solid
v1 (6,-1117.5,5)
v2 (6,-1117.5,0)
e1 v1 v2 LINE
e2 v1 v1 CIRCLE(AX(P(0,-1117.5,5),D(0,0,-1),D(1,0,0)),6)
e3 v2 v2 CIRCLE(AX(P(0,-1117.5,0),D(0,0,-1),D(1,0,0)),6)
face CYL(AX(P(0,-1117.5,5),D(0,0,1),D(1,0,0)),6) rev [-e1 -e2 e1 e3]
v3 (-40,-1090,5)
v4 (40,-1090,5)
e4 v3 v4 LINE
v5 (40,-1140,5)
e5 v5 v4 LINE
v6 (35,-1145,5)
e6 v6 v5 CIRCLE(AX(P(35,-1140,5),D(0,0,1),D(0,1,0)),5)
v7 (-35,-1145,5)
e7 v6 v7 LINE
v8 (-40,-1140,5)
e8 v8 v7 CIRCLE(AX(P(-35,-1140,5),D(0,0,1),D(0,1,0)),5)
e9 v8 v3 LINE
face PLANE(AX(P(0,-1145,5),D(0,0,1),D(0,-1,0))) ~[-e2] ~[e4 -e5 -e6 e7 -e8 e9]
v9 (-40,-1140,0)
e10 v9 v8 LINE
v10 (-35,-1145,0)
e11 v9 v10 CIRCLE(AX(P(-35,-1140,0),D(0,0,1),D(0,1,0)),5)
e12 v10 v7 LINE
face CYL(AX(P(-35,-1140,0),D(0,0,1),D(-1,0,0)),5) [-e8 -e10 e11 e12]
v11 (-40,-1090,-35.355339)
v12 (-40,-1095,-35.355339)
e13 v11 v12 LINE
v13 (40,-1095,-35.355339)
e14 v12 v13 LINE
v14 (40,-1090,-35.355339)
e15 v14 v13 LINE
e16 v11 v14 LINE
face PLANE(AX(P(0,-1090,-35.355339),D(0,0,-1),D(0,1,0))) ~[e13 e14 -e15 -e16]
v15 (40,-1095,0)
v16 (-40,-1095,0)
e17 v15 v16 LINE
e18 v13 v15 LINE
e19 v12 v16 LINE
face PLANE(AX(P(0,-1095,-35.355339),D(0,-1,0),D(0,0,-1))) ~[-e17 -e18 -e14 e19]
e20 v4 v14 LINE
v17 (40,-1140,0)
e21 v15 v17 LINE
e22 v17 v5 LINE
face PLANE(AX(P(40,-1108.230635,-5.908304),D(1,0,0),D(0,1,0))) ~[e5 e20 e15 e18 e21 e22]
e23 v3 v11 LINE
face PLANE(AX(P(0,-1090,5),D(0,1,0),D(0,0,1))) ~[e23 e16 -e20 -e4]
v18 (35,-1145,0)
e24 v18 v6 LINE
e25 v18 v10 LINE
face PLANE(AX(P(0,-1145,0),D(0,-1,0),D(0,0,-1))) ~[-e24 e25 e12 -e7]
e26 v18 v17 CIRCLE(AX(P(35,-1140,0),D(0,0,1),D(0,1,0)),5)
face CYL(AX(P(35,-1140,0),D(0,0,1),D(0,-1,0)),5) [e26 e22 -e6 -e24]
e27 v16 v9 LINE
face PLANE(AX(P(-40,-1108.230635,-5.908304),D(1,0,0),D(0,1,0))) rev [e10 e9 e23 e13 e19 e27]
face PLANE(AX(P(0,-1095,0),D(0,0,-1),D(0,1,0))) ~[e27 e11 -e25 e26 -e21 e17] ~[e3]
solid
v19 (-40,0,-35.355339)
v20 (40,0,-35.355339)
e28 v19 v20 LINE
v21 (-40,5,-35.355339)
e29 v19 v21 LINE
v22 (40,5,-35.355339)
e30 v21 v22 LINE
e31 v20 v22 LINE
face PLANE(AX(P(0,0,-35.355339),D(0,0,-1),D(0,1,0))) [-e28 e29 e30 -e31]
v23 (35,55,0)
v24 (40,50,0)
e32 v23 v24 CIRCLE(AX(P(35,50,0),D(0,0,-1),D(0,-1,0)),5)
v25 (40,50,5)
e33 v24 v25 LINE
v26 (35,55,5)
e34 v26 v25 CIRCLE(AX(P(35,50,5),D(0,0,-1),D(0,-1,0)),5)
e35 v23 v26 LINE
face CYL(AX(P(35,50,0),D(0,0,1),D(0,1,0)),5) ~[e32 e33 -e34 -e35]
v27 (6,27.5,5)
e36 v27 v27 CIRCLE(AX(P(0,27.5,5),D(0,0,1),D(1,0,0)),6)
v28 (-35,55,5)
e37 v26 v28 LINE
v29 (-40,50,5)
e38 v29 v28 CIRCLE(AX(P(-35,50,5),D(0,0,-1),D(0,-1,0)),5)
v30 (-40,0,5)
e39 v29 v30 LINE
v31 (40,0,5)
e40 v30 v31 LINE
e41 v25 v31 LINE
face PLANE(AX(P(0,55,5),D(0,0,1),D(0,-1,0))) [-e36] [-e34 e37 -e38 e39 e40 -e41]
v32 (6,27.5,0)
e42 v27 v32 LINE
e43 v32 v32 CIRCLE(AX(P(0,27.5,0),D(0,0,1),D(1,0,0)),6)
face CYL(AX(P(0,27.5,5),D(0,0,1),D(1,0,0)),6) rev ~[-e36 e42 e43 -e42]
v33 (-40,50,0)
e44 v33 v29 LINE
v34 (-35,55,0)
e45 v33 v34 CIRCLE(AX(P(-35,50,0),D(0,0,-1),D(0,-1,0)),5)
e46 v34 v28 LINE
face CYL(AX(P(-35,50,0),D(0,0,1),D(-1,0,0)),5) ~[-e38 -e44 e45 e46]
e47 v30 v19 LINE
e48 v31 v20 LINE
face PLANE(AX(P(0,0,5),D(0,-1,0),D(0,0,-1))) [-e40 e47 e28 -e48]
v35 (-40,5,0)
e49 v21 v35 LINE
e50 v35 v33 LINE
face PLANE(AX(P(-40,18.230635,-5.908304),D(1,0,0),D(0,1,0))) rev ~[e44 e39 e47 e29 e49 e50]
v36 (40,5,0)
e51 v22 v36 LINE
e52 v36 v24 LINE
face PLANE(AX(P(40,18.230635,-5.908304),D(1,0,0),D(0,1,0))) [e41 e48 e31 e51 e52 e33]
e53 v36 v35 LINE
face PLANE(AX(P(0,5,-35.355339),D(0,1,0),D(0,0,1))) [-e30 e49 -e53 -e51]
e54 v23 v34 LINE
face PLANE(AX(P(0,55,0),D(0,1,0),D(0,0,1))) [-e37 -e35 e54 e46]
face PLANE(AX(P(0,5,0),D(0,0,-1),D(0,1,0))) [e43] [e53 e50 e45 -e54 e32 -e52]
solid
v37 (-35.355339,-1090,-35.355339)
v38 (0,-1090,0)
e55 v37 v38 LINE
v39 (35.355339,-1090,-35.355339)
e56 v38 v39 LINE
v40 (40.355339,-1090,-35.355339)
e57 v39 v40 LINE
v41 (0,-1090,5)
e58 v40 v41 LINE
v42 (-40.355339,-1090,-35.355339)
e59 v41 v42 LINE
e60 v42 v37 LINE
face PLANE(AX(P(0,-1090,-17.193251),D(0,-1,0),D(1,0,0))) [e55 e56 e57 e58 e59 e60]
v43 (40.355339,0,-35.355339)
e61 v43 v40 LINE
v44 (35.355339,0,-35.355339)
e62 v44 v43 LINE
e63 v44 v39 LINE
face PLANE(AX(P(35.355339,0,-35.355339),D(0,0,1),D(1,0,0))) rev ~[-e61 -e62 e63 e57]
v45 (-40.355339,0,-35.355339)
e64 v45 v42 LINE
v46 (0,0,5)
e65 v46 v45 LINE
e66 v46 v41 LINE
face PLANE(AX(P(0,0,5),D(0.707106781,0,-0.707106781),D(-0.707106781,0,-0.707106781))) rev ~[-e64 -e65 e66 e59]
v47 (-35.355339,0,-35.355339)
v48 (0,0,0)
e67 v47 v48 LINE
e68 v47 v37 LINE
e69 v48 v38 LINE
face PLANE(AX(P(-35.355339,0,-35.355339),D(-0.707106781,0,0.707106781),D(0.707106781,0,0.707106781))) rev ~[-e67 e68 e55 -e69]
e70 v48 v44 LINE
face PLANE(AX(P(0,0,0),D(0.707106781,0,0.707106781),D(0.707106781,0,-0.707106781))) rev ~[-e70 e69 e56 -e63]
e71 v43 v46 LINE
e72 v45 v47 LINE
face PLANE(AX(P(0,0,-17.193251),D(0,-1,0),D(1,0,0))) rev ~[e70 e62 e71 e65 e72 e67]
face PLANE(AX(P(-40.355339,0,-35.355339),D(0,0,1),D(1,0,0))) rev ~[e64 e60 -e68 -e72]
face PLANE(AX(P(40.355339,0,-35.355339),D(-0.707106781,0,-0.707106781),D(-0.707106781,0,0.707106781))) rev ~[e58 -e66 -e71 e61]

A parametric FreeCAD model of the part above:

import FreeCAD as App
import Part
import Sketcher
from FreeCAD import Vector


def edges_at(feature, points):
    """Names of the edges that pass closest to the given points."""
    edges = feature.Shape.Edges
    near = lambda p: min(range(len(edges)), key=lambda i: edges[i].distToShape(Part.Vertex(*p))[0])
    return sorted({f"Edge{near(p) + 1}" for p in points})

doc = App.newDocument("Part")
body = doc.addObject("PartDesign::Body", "Body")

# Sketch on XZ plane
sketch1 = body.newObject("Sketcher::SketchObject", "Sketch")
sketch1.AttachmentSupport = (doc.getObject("XZ_Plane"), [""])
sketch1.MapMode = "FlatFace"
sketch1.addGeometry(Part.LineSegment(Vector(-35, -35, 0), Vector(0, 0, 0)), False)
sketch1.addGeometry(Part.LineSegment(Vector(0, 0, 0), Vector(35, -35, 0)), False)
sketch1.addGeometry(Part.LineSegment(Vector(35, -35, 0), Vector(40, -35, 0)), False)
sketch1.addGeometry(Part.LineSegment(Vector(40, -35, 0), Vector(0, 5, 0)), False)
sketch1.addGeometry(Part.LineSegment(Vector(0, 5, 0), Vector(-40, -35, 0)), False)
sketch1.addGeometry(Part.LineSegment(Vector(-40, -35, 0), Vector(-35, -35, 0)), False)
sketch1.addConstraint(Sketcher.Constraint("Coincident", 0, 2, 1, 1))
sketch1.addConstraint(Sketcher.Constraint("Coincident", 1, 2, 2, 1))
sketch1.addConstraint(Sketcher.Constraint("Coincident", 2, 2, 3, 1))
sketch1.addConstraint(Sketcher.Constraint("Coincident", 3, 2, 4, 1))
sketch1.addConstraint(Sketcher.Constraint("Coincident", 4, 2, 5, 1))
sketch1.addConstraint(Sketcher.Constraint("Coincident", 5, 2, 0, 1))
sketch1.addConstraint(Sketcher.Constraint("Horizontal", 2))
sketch1.addConstraint(Sketcher.Constraint("Horizontal", 5))
sketch1.addConstraint(Sketcher.Constraint("Coincident", 0, 2, -1, 1))
sketch1.addConstraint(Sketcher.Constraint("Symmetric", 2, 2, 4, 2, -2))
sketch1.addConstraint(Sketcher.Constraint("PointOnObject", 3, 2, -2))
sketch1.addConstraint(Sketcher.Constraint("Perpendicular", 0, 1))
sketch1.addConstraint(Sketcher.Constraint("Parallel", 1, 3))
sketch1.addConstraint(Sketcher.Constraint("Perpendicular", 3, 4))
sketch1.addConstraint(Sketcher.Constraint("DistanceX", 2, 1, 2, 2, 5.0))
sketch1.addConstraint(Sketcher.Constraint("Distance", 0, 50.0))
pad1 = body.newObject("PartDesign::Pad", "Pad")
pad1.Profile = sketch1
pad1.Length = 1090
body2 = doc.addObject("PartDesign::Body", "Body001")

# Sketch on YZ plane
sketch2 = body2.newObject("Sketcher::SketchObject", "Sketch001")
sketch2.AttachmentSupport = (doc.getObject("YZ_Plane001"), [""])
sketch2.MapMode = "FlatFace"
sketch2.addGeometry(Part.LineSegment(Vector(55, 5, 0), Vector(0, 5, 0)), False)
sketch2.addGeometry(Part.LineSegment(Vector(0, 5, 0), Vector(0, -35, 0)), False)
sketch2.addGeometry(Part.LineSegment(Vector(0, -35, 0), Vector(5, -35, 0)), False)
sketch2.addGeometry(Part.LineSegment(Vector(5, -35, 0), Vector(5, 0, 0)), False)
sketch2.addGeometry(Part.LineSegment(Vector(5, 0, 0), Vector(55, 0, 0)), False)
sketch2.addGeometry(Part.LineSegment(Vector(55, 0, 0), Vector(55, 5, 0)), False)
sketch2.addConstraint(Sketcher.Constraint("Coincident", 0, 2, 1, 1))
sketch2.addConstraint(Sketcher.Constraint("Coincident", 1, 2, 2, 1))
sketch2.addConstraint(Sketcher.Constraint("Coincident", 2, 2, 3, 1))
sketch2.addConstraint(Sketcher.Constraint("Coincident", 3, 2, 4, 1))
sketch2.addConstraint(Sketcher.Constraint("Coincident", 4, 2, 5, 1))
sketch2.addConstraint(Sketcher.Constraint("Coincident", 5, 2, 0, 1))
sketch2.addConstraint(Sketcher.Constraint("Horizontal", 0))
sketch2.addConstraint(Sketcher.Constraint("Vertical", 1))
sketch2.addConstraint(Sketcher.Constraint("Horizontal", 2))
sketch2.addConstraint(Sketcher.Constraint("Vertical", 3))
sketch2.addConstraint(Sketcher.Constraint("Horizontal", 4))
sketch2.addConstraint(Sketcher.Constraint("Vertical", 5))
sketch2.addConstraint(Sketcher.Constraint("PointOnObject", 0, 2, -2))
sketch2.addConstraint(Sketcher.Constraint("PointOnObject", 3, 2, -1))
sketch2.addConstraint(Sketcher.Constraint("Equal", 2, 5))
sketch2.addConstraint(Sketcher.Constraint("DistanceX", 0, 2, 0, 1, 55.0))
sketch2.addConstraint(Sketcher.Constraint("DistanceX", 2, 1, 2, 2, 5.0))
sketch2.addConstraint(Sketcher.Constraint("DistanceY", 1, 2, 1, 1, 40.355339))
pad2 = body2.newObject("PartDesign::Pad", "Pad001")
pad2.Profile = sketch2
pad2.Length = 80
pad2.Midplane = True

# Sketch on XY plane
sketch3 = body2.newObject("Sketcher::SketchObject", "Sketch002")
sketch3.AttachmentSupport = (doc.getObject("XY_Plane001"), [""])
sketch3.MapMode = "FlatFace"
sketch3.AttachmentOffset = App.Placement(Vector(0, 0, 5), App.Rotation())
sketch3.addGeometry(Part.Circle(Vector(0, 28, 0), Vector(0, 0, 1), 6), False)
sketch3.addConstraint(Sketcher.Constraint("PointOnObject", 0, 3, -2))
sketch3.addConstraint(Sketcher.Constraint("Diameter", 0, 12.0))
sketch3.addConstraint(Sketcher.Constraint("DistanceY", -1, 1, 0, 3, 27.5))
pocket1 = body2.newObject("PartDesign::Pocket", "Pocket")
pocket1.Profile = sketch3
pocket1.Length = 25
doc.recompute()

fillet = body2.newObject("PartDesign::Fillet", "Fillet")
fillet.Base = (pocket1, edges_at(pocket1, [(-40, 55, 2.5), (40, 55, 2.5)]))
fillet.Radius = 5
body3 = doc.addObject("PartDesign::Body", "Body002")
doc.recompute()

mirroring = doc.addObject("Part::Mirroring", "Mirroring")
mirroring.Source = body2
mirroring.Base = Vector(0, -545, 0)
mirroring.Normal = Vector(0, -1, 0)
body3.BaseFeature = mirroring
doc.recompute()
mirroring.Visibility = False

doc.recompute()
